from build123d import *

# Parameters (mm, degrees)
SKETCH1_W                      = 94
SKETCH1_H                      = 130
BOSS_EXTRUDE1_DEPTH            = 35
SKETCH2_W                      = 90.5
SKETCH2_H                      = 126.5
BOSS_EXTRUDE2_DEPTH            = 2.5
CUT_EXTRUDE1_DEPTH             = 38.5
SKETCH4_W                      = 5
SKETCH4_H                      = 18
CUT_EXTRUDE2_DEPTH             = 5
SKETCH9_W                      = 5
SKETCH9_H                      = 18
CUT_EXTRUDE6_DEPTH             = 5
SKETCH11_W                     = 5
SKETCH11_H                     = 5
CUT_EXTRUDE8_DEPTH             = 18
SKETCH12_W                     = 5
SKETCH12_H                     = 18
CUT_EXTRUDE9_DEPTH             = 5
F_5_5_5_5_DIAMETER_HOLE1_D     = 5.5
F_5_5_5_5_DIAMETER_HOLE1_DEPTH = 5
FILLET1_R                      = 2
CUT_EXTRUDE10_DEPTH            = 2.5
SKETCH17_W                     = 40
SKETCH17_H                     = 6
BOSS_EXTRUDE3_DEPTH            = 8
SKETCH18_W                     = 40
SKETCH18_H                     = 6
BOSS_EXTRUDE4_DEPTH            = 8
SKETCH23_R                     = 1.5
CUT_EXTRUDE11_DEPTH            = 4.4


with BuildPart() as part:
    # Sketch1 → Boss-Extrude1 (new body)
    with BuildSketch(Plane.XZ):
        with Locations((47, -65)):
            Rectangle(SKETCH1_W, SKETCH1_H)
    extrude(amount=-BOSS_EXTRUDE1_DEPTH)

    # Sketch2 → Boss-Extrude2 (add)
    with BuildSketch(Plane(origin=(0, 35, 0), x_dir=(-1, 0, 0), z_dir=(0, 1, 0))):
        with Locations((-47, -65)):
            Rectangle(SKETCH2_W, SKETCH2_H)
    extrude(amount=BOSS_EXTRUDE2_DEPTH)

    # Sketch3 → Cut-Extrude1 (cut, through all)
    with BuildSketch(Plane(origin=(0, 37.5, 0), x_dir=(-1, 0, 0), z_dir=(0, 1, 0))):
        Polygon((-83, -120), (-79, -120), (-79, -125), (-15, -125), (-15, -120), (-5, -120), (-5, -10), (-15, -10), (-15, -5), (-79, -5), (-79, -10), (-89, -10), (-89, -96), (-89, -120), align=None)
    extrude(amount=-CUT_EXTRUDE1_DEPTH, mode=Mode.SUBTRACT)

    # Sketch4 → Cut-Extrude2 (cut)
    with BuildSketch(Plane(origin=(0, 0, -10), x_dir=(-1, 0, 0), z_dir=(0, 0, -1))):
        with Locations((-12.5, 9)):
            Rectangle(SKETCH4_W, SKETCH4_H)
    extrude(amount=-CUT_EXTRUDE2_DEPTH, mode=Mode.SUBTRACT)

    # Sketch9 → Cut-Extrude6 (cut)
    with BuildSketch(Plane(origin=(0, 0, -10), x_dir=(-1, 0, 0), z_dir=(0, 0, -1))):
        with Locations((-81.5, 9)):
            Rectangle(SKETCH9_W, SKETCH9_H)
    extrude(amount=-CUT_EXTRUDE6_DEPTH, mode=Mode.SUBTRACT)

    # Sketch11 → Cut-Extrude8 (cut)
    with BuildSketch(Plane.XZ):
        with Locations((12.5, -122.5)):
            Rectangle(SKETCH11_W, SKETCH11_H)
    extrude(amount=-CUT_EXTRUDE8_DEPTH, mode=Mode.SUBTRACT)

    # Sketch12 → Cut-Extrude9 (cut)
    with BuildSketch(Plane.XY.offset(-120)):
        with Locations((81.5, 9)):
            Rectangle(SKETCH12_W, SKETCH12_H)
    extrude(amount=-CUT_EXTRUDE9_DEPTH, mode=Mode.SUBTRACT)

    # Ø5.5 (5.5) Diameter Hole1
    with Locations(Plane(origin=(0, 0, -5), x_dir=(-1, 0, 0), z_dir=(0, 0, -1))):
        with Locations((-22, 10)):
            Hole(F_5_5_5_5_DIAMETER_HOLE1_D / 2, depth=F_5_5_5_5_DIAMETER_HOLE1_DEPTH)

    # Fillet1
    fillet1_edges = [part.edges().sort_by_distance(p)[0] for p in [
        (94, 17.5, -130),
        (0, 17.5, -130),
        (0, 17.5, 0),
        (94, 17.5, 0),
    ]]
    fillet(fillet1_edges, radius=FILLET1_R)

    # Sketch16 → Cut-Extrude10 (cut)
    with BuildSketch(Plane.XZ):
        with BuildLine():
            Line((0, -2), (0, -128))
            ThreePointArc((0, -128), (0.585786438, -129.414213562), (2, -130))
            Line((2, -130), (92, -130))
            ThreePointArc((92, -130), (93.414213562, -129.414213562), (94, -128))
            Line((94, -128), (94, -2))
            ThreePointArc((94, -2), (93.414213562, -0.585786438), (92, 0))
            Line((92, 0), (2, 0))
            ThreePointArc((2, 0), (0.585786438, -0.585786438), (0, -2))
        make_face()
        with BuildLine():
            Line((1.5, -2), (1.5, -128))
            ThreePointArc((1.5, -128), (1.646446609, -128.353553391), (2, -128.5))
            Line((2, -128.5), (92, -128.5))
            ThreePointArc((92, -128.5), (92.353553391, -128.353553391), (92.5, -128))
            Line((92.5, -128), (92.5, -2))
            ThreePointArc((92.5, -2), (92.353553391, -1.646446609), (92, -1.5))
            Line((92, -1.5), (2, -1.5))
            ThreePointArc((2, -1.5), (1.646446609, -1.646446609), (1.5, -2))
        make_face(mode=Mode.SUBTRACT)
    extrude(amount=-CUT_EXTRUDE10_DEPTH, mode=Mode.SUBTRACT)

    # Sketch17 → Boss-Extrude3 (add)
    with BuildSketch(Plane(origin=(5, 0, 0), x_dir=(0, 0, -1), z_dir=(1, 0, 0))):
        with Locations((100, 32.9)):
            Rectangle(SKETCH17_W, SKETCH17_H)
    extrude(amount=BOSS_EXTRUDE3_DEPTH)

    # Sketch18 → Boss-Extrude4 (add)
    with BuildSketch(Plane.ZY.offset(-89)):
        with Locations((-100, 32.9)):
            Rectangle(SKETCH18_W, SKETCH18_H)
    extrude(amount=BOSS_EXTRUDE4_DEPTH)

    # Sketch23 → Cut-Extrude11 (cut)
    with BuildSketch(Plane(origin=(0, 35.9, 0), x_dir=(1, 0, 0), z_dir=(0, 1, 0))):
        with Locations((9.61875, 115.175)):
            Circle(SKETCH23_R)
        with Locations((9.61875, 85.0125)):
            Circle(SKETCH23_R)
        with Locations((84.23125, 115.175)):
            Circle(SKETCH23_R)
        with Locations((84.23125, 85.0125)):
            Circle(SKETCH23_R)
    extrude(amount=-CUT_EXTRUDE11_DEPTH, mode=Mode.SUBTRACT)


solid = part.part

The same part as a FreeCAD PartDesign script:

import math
import FreeCAD as App
import Part
import Sketcher
from FreeCAD import Vector
Q = App.Units.Quantity


def edges_at(feature, points):
    """Names of the edges that pass closest to the given points."""
    edges = feature.Shape.Edges
    near = lambda p: min(range(len(edges)), key=lambda i: edges[i].distToShape(Part.Vertex(*p))[0])
    return sorted({f"Edge{near(p) + 1}" for p in points})

doc = App.newDocument("Part")
body = doc.addObject("PartDesign::Body", "Body")

# Sketch on XZ plane
sketch1 = doc.addObject("Sketcher::SketchObject", "Sketch")
body.addObject(sketch1)
sketch1.AttachmentSupport = (doc.XZ_Plane, [""])
sketch1.MapMode = "FlatFace"
sketch1.addGeometry([
    Part.LineSegment(Vector(0, 0, 0), Vector(0, -130, 0)),
    Part.LineSegment(Vector(0, -130, 0), Vector(94, -130, 0)),
    Part.LineSegment(Vector(94, -130, 0), Vector(94, 0, 0)),
    Part.LineSegment(Vector(94, 0, 0), Vector(0, 0, 0)),
], False)
sketch1.addConstraint([
    Sketcher.Constraint("Coincident", 0, 2, 1, 1),
    Sketcher.Constraint("Coincident", 1, 2, 2, 1),
    Sketcher.Constraint("Coincident", 2, 2, 3, 1),
    Sketcher.Constraint("Coincident", 3, 2, 0, 1),
    Sketcher.Constraint("Vertical", 0),
    Sketcher.Constraint("Horizontal", 1),
    Sketcher.Constraint("Vertical", 2),
    Sketcher.Constraint("Horizontal", 3),
    Sketcher.Constraint("Coincident", 3, 2, -1, 1),
    Sketcher.Constraint("DistanceX", 1, 1, 1, 2, Q("94 mm")),
    Sketcher.Constraint("DistanceY", 0, 2, 0, 1, Q("130 mm")),
])
pad1 = doc.addObject("PartDesign::Pad", "Pad")
body.addObject(pad1)
pad1.Profile = sketch1
pad1.Length = 35
pad1.Reversed = True

# Sketch on XZ plane
sketch2 = doc.addObject("Sketcher::SketchObject", "Sketch001")
body.addObject(sketch2)
sketch2.AttachmentSupport = (doc.XZ_Plane, [""])
sketch2.MapMode = "FlatFace"
sketch2.AttachmentOffset = App.Placement(Vector(0, 0, -35), App.Rotation())
sketch2.addGeometry([
    Part.LineSegment(Vector(92, -2, 0), Vector(92, -128, 0)),
    Part.LineSegment(Vector(92, -128, 0), Vector(2, -128, 0)),
    Part.LineSegment(Vector(2, -128, 0), Vector(2, -2, 0)),
    Part.LineSegment(Vector(2, -2, 0), Vector(92, -2, 0)),
], False)
sketch2.addConstraint([
    Sketcher.Constraint("Coincident", 0, 2, 1, 1),
    Sketcher.Constraint("Coincident", 1, 2, 2, 1),
    Sketcher.Constraint("Coincident", 2, 2, 3, 1),
    Sketcher.Constraint("Coincident", 3, 2, 0, 1),
    Sketcher.Constraint("Vertical", 0),
    Sketcher.Constraint("Horizontal", 1),
    Sketcher.Constraint("Vertical", 2),
    Sketcher.Constraint("Horizontal", 3),
    Sketcher.Constraint("DistanceX", 1, 2, 1, 1, Q("90.5 mm")),
    Sketcher.Constraint("DistanceY", 0, 2, 0, 1, Q("126.5 mm")),
    Sketcher.Constraint("DistanceX", -1, 1, 0, 2, Q("92.25 mm")),
    Sketcher.Constraint("DistanceY", 0, 2, -1, 1, Q("128.25 mm")),
])
pad2 = doc.addObject("PartDesign::Pad", "Pad001")
body.addObject(pad2)
pad2.Profile = sketch2
pad2.Length = 2.5
pad2.Reversed = True

# Sketch on XZ plane
sketch3 = doc.addObject("Sketcher::SketchObject", "Sketch002")
body.addObject(sketch3)
sketch3.AttachmentSupport = (doc.XZ_Plane, [""])
sketch3.MapMode = "FlatFace"
sketch3.AttachmentOffset = App.Placement(Vector(0, 0, -37.5), App.Rotation())
sketch3.addGeometry([
    Part.LineSegment(Vector(79, -120, 0), Vector(79, -125, 0)),  # 0
    Part.LineSegment(Vector(79, -125, 0), Vector(15, -125, 0)),  # 1
    Part.LineSegment(Vector(15, -125, 0), Vector(15, -120, 0)),  # 2
    Part.LineSegment(Vector(15, -120, 0), Vector(5, -120, 0)),  # 3
    Part.LineSegment(Vector(5, -120, 0), Vector(5, -10, 0)),  # 4
    Part.LineSegment(Vector(5, -10, 0), Vector(15, -10, 0)),  # 5
    Part.LineSegment(Vector(15, -10, 0), Vector(15, -5, 0)),  # 6
    Part.LineSegment(Vector(15, -5, 0), Vector(79, -5, 0)),  # 7
    Part.LineSegment(Vector(79, -5, 0), Vector(79, -10, 0)),  # 8
    Part.LineSegment(Vector(79, -10, 0), Vector(89, -10, 0)),  # 9
    Part.LineSegment(Vector(89, -10, 0), Vector(89, -120, 0)),  # 10
    Part.LineSegment(Vector(89, -120, 0), Vector(79, -120, 0)),  # 11
], False)
sketch3.addConstraint([
    Sketcher.Constraint("Coincident", 0, 2, 1, 1),
    Sketcher.Constraint("Coincident", 1, 2, 2, 1),
    Sketcher.Constraint("Coincident", 2, 2, 3, 1),
    Sketcher.Constraint("Coincident", 3, 2, 4, 1),
    Sketcher.Constraint("Coincident", 4, 2, 5, 1),
    Sketcher.Constraint("Coincident", 5, 2, 6, 1),
    Sketcher.Constraint("Coincident", 6, 2, 7, 1),
    Sketcher.Constraint("Coincident", 7, 2, 8, 1),
    Sketcher.Constraint("Coincident", 8, 2, 9, 1),
    Sketcher.Constraint("Coincident", 9, 2, 10, 1),
    Sketcher.Constraint("Coincident", 10, 2, 11, 1),
    Sketcher.Constraint("Coincident", 11, 2, 0, 1),
    Sketcher.Constraint("Vertical", 0),
    Sketcher.Constraint("Horizontal", 1),
    Sketcher.Constraint("Vertical", 2),
    Sketcher.Constraint("Horizontal", 3),
    Sketcher.Constraint("Vertical", 4),
    Sketcher.Constraint("Horizontal", 5),
    Sketcher.Constraint("Vertical", 6),
    Sketcher.Constraint("Horizontal", 7),
    Sketcher.Constraint("Vertical", 8),
    Sketcher.Constraint("Horizontal", 9),
    Sketcher.Constraint("Vertical", 10),
    Sketcher.Constraint("Horizontal", 11),
    Sketcher.Constraint("Horizontal", 5, 2, 8, 2),
    Sketcher.Constraint("Horizontal", 3, 2, 10, 2),
    Sketcher.Constraint("Vertical", 2, 2, 5, 2),
    Sketcher.Constraint("Vertical", 0, 2, 7, 2),
    Sketcher.Constraint("Equal", 5, 9),
    Sketcher.Constraint("Equal", 2, 6),
    Sketcher.Constraint("DistanceX", 1, 2, 1, 1, Q("64 mm")),
    Sketcher.Constraint("DistanceX", 3, 2, 3, 1, Q("10 mm")),
    Sketcher.Constraint("DistanceY", 0, 2, 0, 1, Q("5 mm")),
    Sketcher.Constraint("DistanceY", 4, 1, 4, 2, Q("110 mm")),
    Sketcher.Constraint("DistanceX", -1, 1, 0, 2, Q("79 mm")),
    Sketcher.Constraint("DistanceY", 0, 2, -1, 1, Q("125 mm")),
])
pocket1 = doc.addObject("PartDesign::Pocket", "Pocket")
body.addObject(pocket1)
pocket1.Profile = sketch3
pocket1.Type = "ThroughAll"
pocket1.Reversed = True

# Sketch on XY plane
sketch4 = doc.addObject("Sketcher::SketchObject", "Sketch003")
body.addObject(sketch4)
sketch4.AttachmentSupport = (doc.XY_Plane, [""])
sketch4.MapMode = "FlatFace"
sketch4.AttachmentOffset = App.Placement(Vector(0, 0, -10), App.Rotation())
sketch4.addGeometry([
    Part.LineSegment(Vector(15, 18, 0), Vector(15, 0, 0)),
    Part.LineSegment(Vector(15, 0, 0), Vector(10, 0, 0)),
    Part.LineSegment(Vector(10, 0, 0), Vector(10, 18, 0)),
    Part.LineSegment(Vector(10, 18, 0), Vector(15, 18, 0)),
], False)
sketch4.addConstraint([
    Sketcher.Constraint("Coincident", 0, 2, 1, 1),
    Sketcher.Constraint("Coincident", 1, 2, 2, 1),
    Sketcher.Constraint("Coincident", 2, 2, 3, 1),
    Sketcher.Constraint("Coincident", 3, 2, 0, 1),
    Sketcher.Constraint("Vertical", 0),
    Sketcher.Constraint("Horizontal", 1),
    Sketcher.Constraint("Vertical", 2),
    Sketcher.Constraint("Horizontal", 3),
    Sketcher.Constraint("PointOnObject", 0, 2, -1),
    Sketcher.Constraint("DistanceX", 1, 2, 1, 1, Q("5 mm")),
    Sketcher.Constraint("DistanceY", 0, 2, 0, 1, Q("18 mm")),
    Sketcher.Constraint("DistanceX", -1, 1, 0, 2, Q("15 mm")),
])
pocket2 = doc.addObject("PartDesign::Pocket", "Pocket001")
body.addObject(pocket2)
pocket2.Profile = sketch4
pocket2.Length = 5
pocket2.Reversed = True

# Sketch on XY plane
sketch5 = doc.addObject("Sketcher::SketchObject", "Sketch004")
body.addObject(sketch5)
sketch5.AttachmentSupport = (doc.XY_Plane, [""])
sketch5.MapMode = "FlatFace"
sketch5.AttachmentOffset = App.Placement(Vector(0, 0, -10), App.Rotation())
sketch5.addGeometry([
    Part.LineSegment(Vector(84, 18, 0), Vector(84, 0, 0)),
    Part.LineSegment(Vector(84, 0, 0), Vector(79, 0, 0)),
    Part.LineSegment(Vector(79, 0, 0), Vector(79, 18, 0)),
    Part.LineSegment(Vector(79, 18, 0), Vector(84, 18, 0)),
], False)
sketch5.addConstraint([
    Sketcher.Constraint("Coincident", 0, 2, 1, 1),
    Sketcher.Constraint("Coincident", 1, 2, 2, 1),
    Sketcher.Constraint("Coincident", 2, 2, 3, 1),
    Sketcher.Constraint("Coincident", 3, 2, 0, 1),
    Sketcher.Constraint("Vertical", 0),
    Sketcher.Constraint("Horizontal", 1),
    Sketcher.Constraint("Vertical", 2),
    Sketcher.Constraint("Horizontal", 3),
    Sketcher.Constraint("PointOnObject", 0, 2, -1),
    Sketcher.Constraint("DistanceX", 1, 2, 1, 1, Q("5 mm")),
    Sketcher.Constraint("DistanceY", 0, 2, 0, 1, Q("18 mm")),
    Sketcher.Constraint("DistanceX", -1, 1, 0, 2, Q("84 mm")),
])
pocket3 = doc.addObject("PartDesign::Pocket", "Pocket002")
body.addObject(pocket3)
pocket3.Profile = sketch5
pocket3.Length = 5
pocket3.Reversed = True

# Sketch on XZ plane
sketch6 = doc.addObject("Sketcher::SketchObject", "Sketch005")
body.addObject(sketch6)
sketch6.AttachmentSupport = (doc.XZ_Plane, [""])
sketch6.MapMode = "FlatFace"
sketch6.addGeometry([
    Part.LineSegment(Vector(10, -120, 0), Vector(10, -125, 0)),
    Part.LineSegment(Vector(10, -125, 0), Vector(15, -125, 0)),
    Part.LineSegment(Vector(15, -125, 0), Vector(15, -120, 0)),
    Part.LineSegment(Vector(15, -120, 0), Vector(10, -120, 0)),
], False)
sketch6.addConstraint([
    Sketcher.Constraint("Coincident", 0, 2, 1, 1),
    Sketcher.Constraint("Coincident", 1, 2, 2, 1),
    Sketcher.Constraint("Coincident", 2, 2, 3, 1),
    Sketcher.Constraint("Coincident", 3, 2, 0, 1),
    Sketcher.Constraint("Vertical", 0),
    Sketcher.Constraint("Horizontal", 1),
    Sketcher.Constraint("Vertical", 2),
    Sketcher.Constraint("Horizontal", 3),
    Sketcher.Constraint("Equal", 3, 0),
    Sketcher.Constraint("DistanceX", 1, 1, 1, 2, Q("5 mm")),
    Sketcher.Constraint("DistanceX", -1, 1, 0, 2, Q("10 mm")),
    Sketcher.Constraint("DistanceY", 0, 2, -1, 1, Q("125 mm")),
])
pocket4 = doc.addObject("PartDesign::Pocket", "Pocket003")
body.addObject(pocket4)
pocket4.Profile = sketch6
pocket4.Length = 18

# Sketch on XY plane
sketch7 = doc.addObject("Sketcher::SketchObject", "Sketch006")
body.addObject(sketch7)
sketch7.AttachmentSupport = (doc.XY_Plane, [""])
sketch7.MapMode = "FlatFace"
sketch7.AttachmentOffset = App.Placement(Vector(0, 0, -120), App.Rotation())
sketch7.addGeometry([
    Part.LineSegment(Vector(79, 18, 0), Vector(79, 0, 0)),
    Part.LineSegment(Vector(79, 0, 0), Vector(84, 0, 0)),
    Part.LineSegment(Vector(84, 0, 0), Vector(84, 18, 0)),
    Part.LineSegment(Vector(84, 18, 0), Vector(79, 18, 0)),
], False)
sketch7.addConstraint([
    Sketcher.Constraint("Coincident", 0, 2, 1, 1),
    Sketcher.Constraint("Coincident", 1, 2, 2, 1),
    Sketcher.Constraint("Coincident", 2, 2, 3, 1),
    Sketcher.Constraint("Coincident", 3, 2, 0, 1),
    Sketcher.Constraint("Vertical", 0),
    Sketcher.Constraint("Horizontal", 1),
    Sketcher.Constraint("Vertical", 2),
    Sketcher.Constraint("Horizontal", 3),
    Sketcher.Constraint("PointOnObject", 0, 2, -1),
    Sketcher.Constraint("DistanceX", 1, 1, 1, 2, Q("5 mm")),
    Sketcher.Constraint("DistanceY", 0, 2, 0, 1, Q("18 mm")),
    Sketcher.Constraint("DistanceX", -1, 1, 0, 2, Q("79 mm")),
])
pocket5 = doc.addObject("PartDesign::Pocket", "Pocket004")
body.addObject(pocket5)
pocket5.Profile = sketch7
pocket5.Length = 5

# Sketch on XY plane
sketch8 = doc.addObject("Sketcher::SketchObject", "Sketch007")
body.addObject(sketch8)
sketch8.AttachmentSupport = (doc.XY_Plane, [""])
sketch8.MapMode = "FlatFace"
sketch8.AttachmentOffset = App.Placement(Vector(0, 0, -5), App.Rotation())
sketch8.addGeometry(Part.Circle(Vector(22, 10, 0), Vector(0, 0, 1), 2.8), False)
sketch8.addConstraint([
    Sketcher.Constraint("Diameter", 0, Q("5.5 mm")),
    Sketcher.Constraint("DistanceX", -1, 1, 0, 3, Q("22 mm")),
    Sketcher.Constraint("DistanceY", -1, 1, 0, 3, Q("10 mm")),
])
doc.recompute()
hole = doc.addObject("PartDesign::Hole", "Hole")
body.addObject(hole)
hole.Profile = sketch8
hole.ThreadType = "None"
hole.Diameter = 5.5
hole.DepthType = "Dimension"
hole.Depth = 5
hole.DrillPoint = "Flat"
hole.Reversed = True
doc.recompute()

fillet = doc.addObject("PartDesign::Fillet", "Fillet")
body.addObject(fillet)
fillet.Base = (hole, edges_at(hole, [
    (94, 17.5, -130),
    (0, 17.5, -130),
    (0, 17.5, 0),
    (94, 17.5, 0),
]))
fillet.Radius = 2

# Sketch on XZ plane
sketch9 = doc.addObject("Sketcher::SketchObject", "Sketch008")
body.addObject(sketch9)
sketch9.AttachmentSupport = (doc.XZ_Plane, [""])
sketch9.MapMode = "FlatFace"
sketch9.addGeometry([
    Part.LineSegment(Vector(0, -2, 0), Vector(0, -128, 0)),  # 0
    Part.ArcOfCircle(Part.Circle(Vector(2, -128, 0), Vector(0, 0, 1), 2), math.radians(-180), math.radians(-90)),  # 1
    Part.LineSegment(Vector(2, -130, 0), Vector(92, -130, 0)),  # 2
    Part.ArcOfCircle(Part.Circle(Vector(92, -128, 0), Vector(0, 0, 1), 2), math.radians(-90), math.radians(0)),  # 3
    Part.LineSegment(Vector(94, -128, 0), Vector(94, -2, 0)),  # 4
    Part.ArcOfCircle(Part.Circle(Vector(92, -2, 0), Vector(0, 0, 1), 2), math.radians(0), math.radians(90)),  # 5
    Part.LineSegment(Vector(92, 0, 0), Vector(2, 0, 0)),  # 6
    Part.ArcOfCircle(Part.Circle(Vector(2, -2, 0), Vector(0, 0, 1), 2), math.radians(90), math.radians(180)),  # 7
    Part.LineSegment(Vector(1.5, -128, 0), Vector(1.5, -2, 0)),  # 8
    Part.ArcOfCircle(Part.Circle(Vector(2, -2, 0), Vector(0, 0, 1), 0.5), math.radians(90), math.radians(180)),  # 9
    Part.LineSegment(Vector(2, -1.5, 0), Vector(92, -1.5, 0)),  # 10
    Part.ArcOfCircle(Part.Circle(Vector(92, -2, 0), Vector(0, 0, 1), 0.5), math.radians(0), math.radians(90)),  # 11
    Part.LineSegment(Vector(92.5, -2, 0), Vector(92.5, -128, 0)),  # 12
    Part.ArcOfCircle(Part.Circle(Vector(92, -128, 0), Vector(0, 0, 1), 0.5), math.radians(-90), math.radians(0)),  # 13
    Part.LineSegment(Vector(92, -128.5, 0), Vector(2, -128.5, 0)),  # 14
    Part.ArcOfCircle(Part.Circle(Vector(2, -128, 0), Vector(0, 0, 1), 0.5), math.radians(180), math.radians(270)),  # 15
], False)
sketch9.addConstraint([
    Sketcher.Constraint("Tangent", 0, 2, 1, 1),
    Sketcher.Constraint("Tangent", 1, 2, 2, 1),
    Sketcher.Constraint("Tangent", 2, 2, 3, 1),
    Sketcher.Constraint("Tangent", 3, 2, 4, 1),
    Sketcher.Constraint("Tangent", 4, 2, 5, 1),
    Sketcher.Constraint("Tangent", 5, 2, 6, 1),
    Sketcher.Constraint("Tangent", 6, 2, 7, 1),
    Sketcher.Constraint("Tangent", 7, 2, 0, 1),
    Sketcher.Constraint("Tangent", 8, 2, 9, 2),
    Sketcher.Constraint("Tangent", 9, 1, 10, 1),
    Sketcher.Constraint("Tangent", 10, 2, 11, 2),
    Sketcher.Constraint("Tangent", 11, 1, 12, 1),
    Sketcher.Constraint("Tangent", 12, 2, 13, 2),
    Sketcher.Constraint("Tangent", 13, 1, 14, 1),
    Sketcher.Constraint("Tangent", 14, 2, 15, 2),
    Sketcher.Constraint("Tangent", 15, 1, 8, 1),
    Sketcher.Constraint("Vertical", 0),
    Sketcher.Constraint("Horizontal", 2),
    Sketcher.Constraint("Vertical", 4),
    Sketcher.Constraint("Horizontal", 6),
    Sketcher.Constraint("Vertical", 8),
    Sketcher.Constraint("Horizontal", 10),
    Sketcher.Constraint("Vertical", 12),
    Sketcher.Constraint("Horizontal", 14),
    Sketcher.Constraint("Coincident", 9, 3, 7, 3),
    Sketcher.Constraint("Coincident", 11, 3, 5, 3),
    Sketcher.Constraint("Coincident", 13, 3, 3, 3),
    Sketcher.Constraint("Equal", 1, 3),
    Sketcher.Constraint("Equal", 3, 5),
    Sketcher.Constraint("Equal", 5, 7),
    Sketcher.Constraint("Equal", 13, 15),
    Sketcher.Constraint("PointOnObject", 0, 2, -2),
    Sketcher.Constraint("PointOnObject", 5, 2, -1),
    Sketcher.Constraint("Radius", 1, Q("2 mm")),
    Sketcher.Constraint("Radius", 9, Q("0.5 mm")),
    Sketcher.Constraint("DistanceX", 2, 1, 2, 2, Q("90 mm")),
    Sketcher.Constraint("DistanceY", 0, 2, 0, 1, Q("126 mm")),
])
pocket6 = doc.addObject("PartDesign::Pocket", "Pocket005")
body.addObject(pocket6)
pocket6.Profile = sketch9
pocket6.Length = 2.5

# Sketch on YZ plane
sketch10 = doc.addObject("Sketcher::SketchObject", "Sketch009")
body.addObject(sketch10)
sketch10.AttachmentSupport = (doc.YZ_Plane, [""])
sketch10.MapMode = "FlatFace"
sketch10.AttachmentOffset = App.Placement(Vector(0, 0, 5), App.Rotation())
sketch10.addGeometry([
    Part.LineSegment(Vector(36, -80, 0), Vector(30, -80, 0)),
    Part.LineSegment(Vector(30, -80, 0), Vector(30, -120, 0)),
    Part.LineSegment(Vector(30, -120, 0), Vector(36, -120, 0)),
    Part.LineSegment(Vector(36, -120, 0), Vector(36, -80, 0)),
], False)
sketch10.addConstraint([
    Sketcher.Constraint("Coincident", 0, 2, 1, 1),
    Sketcher.Constraint("Coincident", 1, 2, 2, 1),
    Sketcher.Constraint("Coincident", 2, 2, 3, 1),
    Sketcher.Constraint("Coincident", 3, 2, 0, 1),
    Sketcher.Constraint("Horizontal", 0),
    Sketcher.Constraint("Vertical", 1),
    Sketcher.Constraint("Horizontal", 2),
    Sketcher.Constraint("Vertical", 3),
    Sketcher.Constraint("DistanceX", 0, 2, 0, 1, Q("6 mm")),
    Sketcher.Constraint("DistanceY", 1, 2, 1, 1, Q("40 mm")),
    Sketcher.Constraint("DistanceY", 0, 2, -1, 1, Q("80 mm")),
    Sketcher.Constraint("DistanceX", -1, 1, 0, 2, Q("29.9 mm")),
])
pad3 = doc.addObject("PartDesign::Pad", "Pad002")
body.addObject(pad3)
pad3.Profile = sketch10
pad3.Length = 8

# Sketch on YZ plane
sketch11 = doc.addObject("Sketcher::SketchObject", "Sketch010")
body.addObject(sketch11)
sketch11.AttachmentSupport = (doc.YZ_Plane, [""])
sketch11.MapMode = "FlatFace"
sketch11.AttachmentOffset = App.Placement(Vector(0, 0, 89), App.Rotation())
sketch11.addGeometry([
    Part.LineSegment(Vector(36, -120, 0), Vector(30, -120, 0)),
    Part.LineSegment(Vector(30, -120, 0), Vector(30, -80, 0)),
    Part.LineSegment(Vector(30, -80, 0), Vector(36, -80, 0)),
    Part.LineSegment(Vector(36, -80, 0), Vector(36, -120, 0)),
], False)
sketch11.addConstraint([
    Sketcher.Constraint("Coincident", 0, 2, 1, 1),
    Sketcher.Constraint("Coincident", 1, 2, 2, 1),
    Sketcher.Constraint("Coincident", 2, 2, 3, 1),
    Sketcher.Constraint("Coincident", 3, 2, 0, 1),
    Sketcher.Constraint("Horizontal", 0),
    Sketcher.Constraint("Vertical", 1),
    Sketcher.Constraint("Horizontal", 2),
    Sketcher.Constraint("Vertical", 3),
    Sketcher.Constraint("DistanceX", 0, 2, 0, 1, Q("6 mm")),
    Sketcher.Constraint("DistanceY", 1, 1, 1, 2, Q("40 mm")),
    Sketcher.Constraint("DistanceY", 0, 2, -1, 1, Q("120 mm")),
    Sketcher.Constraint("DistanceX", -1, 1, 0, 2, Q("29.9 mm")),
])
pad4 = doc.addObject("PartDesign::Pad", "Pad003")
body.addObject(pad4)
pad4.Profile = sketch11
pad4.Length = 8
pad4.Reversed = True

# Sketch on XZ plane
sketch12 = doc.addObject("Sketcher::SketchObject", "Sketch011")
body.addObject(sketch12)
sketch12.AttachmentSupport = (doc.XZ_Plane, [""])
sketch12.MapMode = "FlatFace"
sketch12.AttachmentOffset = App.Placement(Vector(0, 0, -35.9), App.Rotation())
sketch12.addGeometry([
    Part.Circle(Vector(9.6, -115.2, 0), Vector(0, 0, 1), 1.5),
    Part.Circle(Vector(9.6, -85, 0), Vector(0, 0, 1), 1.5),
    Part.Circle(Vector(84.2, -115.2, 0), Vector(0, 0, 1), 1.5),
    Part.Circle(Vector(84.2, -85, 0), Vector(0, 0, 1), 1.5),
], False)
sketch12.addConstraint([
    Sketcher.Constraint("Equal", 0, 1),
    Sketcher.Constraint("Equal", 1, 2),
    Sketcher.Constraint("Equal", 2, 3),
    Sketcher.Constraint("Horizontal", 0, 3, 2, 3),
    Sketcher.Constraint("Horizontal", 1, 3, 3, 3),
    Sketcher.Constraint("Vertical", 0, 3, 1, 3),
    Sketcher.Constraint("Vertical", 2, 3, 3, 3),
    Sketcher.Constraint("Diameter", 0, Q("3 mm")),
    Sketcher.Constraint("DistanceY", 0, 3, -1, 1, Q("115.175 mm")),
    Sketcher.Constraint("DistanceY", 1, 3, -1, 1, Q("85.0125 mm")),
    Sketcher.Constraint("DistanceX", 0, 3, 2, 3, Q("74.6125 mm")),
    Sketcher.Constraint("DistanceX", -1, 1, 0, 3, Q("9.61875 mm")),
])
pocket7 = doc.addObject("PartDesign::Pocket", "Pocket006")
body.addObject(pocket7)
pocket7.Profile = sketch12
pocket7.Length = 4.4
pocket7.Reversed = True

doc.recompute()
